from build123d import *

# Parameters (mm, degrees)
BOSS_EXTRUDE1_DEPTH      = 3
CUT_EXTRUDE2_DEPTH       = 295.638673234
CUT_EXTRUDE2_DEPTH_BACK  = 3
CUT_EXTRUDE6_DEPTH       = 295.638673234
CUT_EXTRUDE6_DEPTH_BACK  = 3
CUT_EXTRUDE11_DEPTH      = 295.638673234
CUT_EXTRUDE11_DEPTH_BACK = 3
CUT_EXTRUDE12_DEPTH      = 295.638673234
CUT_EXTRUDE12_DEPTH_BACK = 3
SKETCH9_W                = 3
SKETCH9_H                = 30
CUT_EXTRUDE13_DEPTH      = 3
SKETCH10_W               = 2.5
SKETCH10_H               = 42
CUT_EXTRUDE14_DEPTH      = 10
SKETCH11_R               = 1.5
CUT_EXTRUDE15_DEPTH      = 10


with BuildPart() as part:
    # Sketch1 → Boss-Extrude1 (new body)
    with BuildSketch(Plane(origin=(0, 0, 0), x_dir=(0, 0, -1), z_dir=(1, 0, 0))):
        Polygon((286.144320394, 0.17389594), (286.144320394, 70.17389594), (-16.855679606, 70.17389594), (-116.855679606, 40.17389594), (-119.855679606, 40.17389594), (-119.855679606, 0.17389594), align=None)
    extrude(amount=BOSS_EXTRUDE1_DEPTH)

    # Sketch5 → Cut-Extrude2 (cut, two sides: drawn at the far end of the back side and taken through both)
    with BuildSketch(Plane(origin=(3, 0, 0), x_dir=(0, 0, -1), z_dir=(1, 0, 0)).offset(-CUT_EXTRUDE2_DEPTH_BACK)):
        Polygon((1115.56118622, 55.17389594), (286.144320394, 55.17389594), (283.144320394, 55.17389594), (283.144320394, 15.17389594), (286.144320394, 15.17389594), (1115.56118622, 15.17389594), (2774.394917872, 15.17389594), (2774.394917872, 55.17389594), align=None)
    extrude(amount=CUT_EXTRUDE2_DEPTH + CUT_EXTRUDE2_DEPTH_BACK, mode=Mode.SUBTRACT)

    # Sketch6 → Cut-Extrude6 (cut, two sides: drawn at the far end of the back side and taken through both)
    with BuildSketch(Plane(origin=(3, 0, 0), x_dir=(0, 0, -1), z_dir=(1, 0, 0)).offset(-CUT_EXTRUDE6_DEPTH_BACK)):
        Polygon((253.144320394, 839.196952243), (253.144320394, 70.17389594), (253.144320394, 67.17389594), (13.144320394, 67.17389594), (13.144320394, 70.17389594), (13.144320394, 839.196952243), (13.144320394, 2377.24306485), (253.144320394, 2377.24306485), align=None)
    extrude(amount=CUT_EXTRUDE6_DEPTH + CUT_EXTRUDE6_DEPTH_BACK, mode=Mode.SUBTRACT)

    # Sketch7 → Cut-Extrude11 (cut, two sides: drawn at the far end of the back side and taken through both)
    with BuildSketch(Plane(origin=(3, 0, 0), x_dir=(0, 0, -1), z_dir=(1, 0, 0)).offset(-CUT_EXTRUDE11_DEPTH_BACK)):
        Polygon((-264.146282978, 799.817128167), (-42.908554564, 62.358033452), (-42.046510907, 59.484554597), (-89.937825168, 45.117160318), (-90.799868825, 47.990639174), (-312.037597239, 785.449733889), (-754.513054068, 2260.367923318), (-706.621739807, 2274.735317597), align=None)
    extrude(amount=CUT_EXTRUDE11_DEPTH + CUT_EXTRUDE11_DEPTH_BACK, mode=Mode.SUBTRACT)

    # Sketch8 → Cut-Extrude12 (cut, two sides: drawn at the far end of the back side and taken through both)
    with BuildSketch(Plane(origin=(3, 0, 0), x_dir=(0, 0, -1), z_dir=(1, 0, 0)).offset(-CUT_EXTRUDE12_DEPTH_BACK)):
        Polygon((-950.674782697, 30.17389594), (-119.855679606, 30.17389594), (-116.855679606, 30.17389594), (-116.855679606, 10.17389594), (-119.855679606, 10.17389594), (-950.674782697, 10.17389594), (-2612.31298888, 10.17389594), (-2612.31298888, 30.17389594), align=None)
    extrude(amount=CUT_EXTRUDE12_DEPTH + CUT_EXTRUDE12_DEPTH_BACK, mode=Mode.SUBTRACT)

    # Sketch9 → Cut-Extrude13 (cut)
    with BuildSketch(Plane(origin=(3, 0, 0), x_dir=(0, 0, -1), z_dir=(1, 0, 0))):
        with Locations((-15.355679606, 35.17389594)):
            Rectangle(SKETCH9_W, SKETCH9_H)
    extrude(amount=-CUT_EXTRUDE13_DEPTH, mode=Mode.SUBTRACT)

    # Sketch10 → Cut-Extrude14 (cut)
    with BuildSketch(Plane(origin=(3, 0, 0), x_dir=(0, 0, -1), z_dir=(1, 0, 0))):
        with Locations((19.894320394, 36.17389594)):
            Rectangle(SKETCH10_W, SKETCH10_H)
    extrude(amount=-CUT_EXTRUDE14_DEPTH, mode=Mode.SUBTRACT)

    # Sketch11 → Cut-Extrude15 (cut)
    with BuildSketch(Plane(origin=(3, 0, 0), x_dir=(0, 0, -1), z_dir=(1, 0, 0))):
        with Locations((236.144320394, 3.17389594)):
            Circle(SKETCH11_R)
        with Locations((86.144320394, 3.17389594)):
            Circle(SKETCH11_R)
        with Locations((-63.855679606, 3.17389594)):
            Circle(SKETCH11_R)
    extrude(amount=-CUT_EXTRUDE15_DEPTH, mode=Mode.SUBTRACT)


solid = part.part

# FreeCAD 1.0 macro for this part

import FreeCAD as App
import Part
import Sketcher
from FreeCAD import Vector
Q = App.Units.Quantity


def add_polygon(sketch, points):
    """Adds a closed chain of lines whose ends are joined by coincident constraints."""
    first, n = sketch.GeometryCount, len(points)
    for a, b in zip(points, points[1:] + points[:1]):
        sketch.addGeometry(Part.LineSegment(App.Vector(*a, 0), App.Vector(*b, 0)), False)
    for i in range(n):
        sketch.addConstraint(Sketcher.Constraint("Coincident", first + i, 2, first + (i + 1) % n, 1))

doc = App.newDocument("Part")
body = doc.addObject("PartDesign::Body", "Body")

# Sketch on YZ plane
sketch1 = body.newObject("Sketcher::SketchObject", "Sketch")
sketch1.AttachmentSupport = (doc.getObject("YZ_Plane"), [""])
sketch1.MapMode = "FlatFace"
add_polygon(sketch1, [(0.2, -286.1), (70.2, -286.1), (70.2, 16.9), (40.2, 116.9), (40.2, 119.9), (0.2, 119.9)])  # lines 0-5
sketch1.addConstraint([
    Sketcher.Constraint("Horizontal", 0),
    Sketcher.Constraint("Vertical", 1),
    Sketcher.Constraint("Vertical", 3),
    Sketcher.Constraint("Horizontal", 4),
    Sketcher.Constraint("Vertical", 5),
    Sketcher.Constraint("DistanceX", 0, 1, 0, 2, Q("70 mm")),
    Sketcher.Constraint("DistanceX", 4, 2, 4, 1, Q("40 mm")),
    Sketcher.Constraint("DistanceY", 1, 1, 1, 2, Q("303 mm")),
    Sketcher.Constraint("DistanceY", 3, 1, 3, 2, Q("3 mm")),
    Sketcher.Constraint("DistanceY", 5, 2, 5, 1, Q("406 mm")),
    Sketcher.Constraint("DistanceY", 0, 2, -1, 1, Q("286.14432 mm")),
    Sketcher.Constraint("DistanceX", -1, 1, 0, 2, Q("70.173896 mm")),
])
pad1 = body.newObject("PartDesign::Pad", "Pad")
pad1.Profile = sketch1
pad1.Length = 3

# Sketch on YZ plane
sketch2 = body.newObject("Sketcher::SketchObject", "Sketch001")
sketch2.AttachmentSupport = (doc.getObject("YZ_Plane"), [""])
sketch2.MapMode = "FlatFace"
sketch2.AttachmentOffset = App.Placement(Vector(0, 0, 3), App.Rotation())
add_polygon(sketch2, [(55, -283), (15, -283), (15, -2774), (55, -2774)])  # lines 0-3
sketch2.addConstraint([
    Sketcher.Constraint("Horizontal", 0),
    Sketcher.Constraint("Vertical", 1),
    Sketcher.Constraint("Horizontal", 2),
    Sketcher.Constraint("Vertical", 3),
    Sketcher.Constraint("DistanceX", 0, 2, 0, 1, Q("40 mm")),
    Sketcher.Constraint("DistanceY", 1, 2, 1, 1, Q("2491.250597 mm")),
    Sketcher.Constraint("DistanceY", 0, 2, -1, 1, Q("283.14432 mm")),
    Sketcher.Constraint("DistanceX", -1, 1, 0, 2, Q("15.173896 mm")),
])
pocket1 = body.newObject("PartDesign::Pocket", "Pocket")
pocket1.Profile = sketch2
pocket1.Type = "ThroughAll"
pocket1.Midplane = True

# Sketch on YZ plane
sketch3 = body.newObject("Sketcher::SketchObject", "Sketch002")
sketch3.AttachmentSupport = (doc.getObject("YZ_Plane"), [""])
sketch3.MapMode = "FlatFace"
sketch3.AttachmentOffset = App.Placement(Vector(0, 0, 3), App.Rotation())
add_polygon(sketch3, [(67, -253), (2377, -253), (2377, -13), (67, -13)])  # lines 0-3
sketch3.addConstraint([
    Sketcher.Constraint("Horizontal", 0),
    Sketcher.Constraint("Vertical", 1),
    Sketcher.Constraint("Horizontal", 2),
    Sketcher.Constraint("Vertical", 3),
    Sketcher.Constraint("DistanceY", 1, 1, 1, 2, Q("240 mm")),
    Sketcher.Constraint("DistanceX", 0, 1, 0, 2, Q("2310.069169 mm")),
    Sketcher.Constraint("DistanceY", 0, 2, -1, 1, Q("253.14432 mm")),
    Sketcher.Constraint("DistanceX", -1, 1, 0, 2, Q("2377.243065 mm")),
])
pocket2 = body.newObject("PartDesign::Pocket", "Pocket001")
pocket2.Profile = sketch3
pocket2.Type = "ThroughAll"
pocket2.Midplane = True

# Sketch on YZ plane
sketch4 = body.newObject("Sketcher::SketchObject", "Sketch003")
sketch4.AttachmentSupport = (doc.getObject("YZ_Plane"), [""])
sketch4.MapMode = "FlatFace"
sketch4.AttachmentOffset = App.Placement(Vector(0, 0, 3), App.Rotation())
add_polygon(sketch4, [(62.4, 42.9), (2274.7, 706.6), (2260.4, 754.5), (48, 90.8), (45.1, 89.9), (59.5, 42)])  # lines 0-5
sketch4.addConstraint([
    Sketcher.Constraint("Perpendicular", 0, 1),
    Sketcher.Constraint("Perpendicular", 1, 2),
    Sketcher.Constraint("Parallel", 2, 3),
    Sketcher.Constraint("Perpendicular", 3, 4),
    Sketcher.Constraint("Perpendicular", 4, 5),
    Sketcher.Constraint("Equal", 0, 2),
    Sketcher.Constraint("Distance", 1, Q("50 mm")),
    Sketcher.Constraint("Distance", 3, Q("3 mm")),
    Sketcher.Constraint("DistanceY", 5, 2, 1, 2, Q("711.6045 mm")),
    Sketcher.Constraint("DistanceY", -1, 1, 0, 2, Q("706.62174 mm")),
    Sketcher.Constraint("DistanceX", -1, 1, 2, 2, Q("47.990639 mm")),
    Sketcher.Constraint("DistanceX", 2, 2, 0, 2, Q("2226.744678 mm")),
])
pocket3 = body.newObject("PartDesign::Pocket", "Pocket002")
pocket3.Profile = sketch4
pocket3.Type = "ThroughAll"
pocket3.Midplane = True

# Sketch on YZ plane
sketch5 = body.newObject("Sketcher::SketchObject", "Sketch004")
sketch5.AttachmentSupport = (doc.getObject("YZ_Plane"), [""])
sketch5.MapMode = "FlatFace"
sketch5.AttachmentOffset = App.Placement(Vector(0, 0, 3), App.Rotation())
add_polygon(sketch5, [(30, 117), (30, 2612), (10, 2612), (10, 117)])  # lines 0-3
sketch5.addConstraint([
    Sketcher.Constraint("Vertical", 0),
    Sketcher.Constraint("Horizontal", 1),
    Sketcher.Constraint("Vertical", 2),
    Sketcher.Constraint("Horizontal", 3),
    Sketcher.Constraint("DistanceX", 1, 2, 1, 1, Q("20 mm")),
    Sketcher.Constraint("DistanceY", 0, 1, 0, 2, Q("2495.457309 mm")),
    Sketcher.Constraint("DistanceY", -1, 1, 0, 2, Q("2612.312989 mm")),
    Sketcher.Constraint("DistanceX", -1, 1, 0, 2, Q("30.173896 mm")),
])
pocket4 = body.newObject("PartDesign::Pocket", "Pocket003")
pocket4.Profile = sketch5
pocket4.Type = "ThroughAll"
pocket4.Midplane = True

# Sketch on YZ plane
sketch6 = body.newObject("Sketcher::SketchObject", "Sketch005")
sketch6.AttachmentSupport = (doc.getObject("YZ_Plane"), [""])
sketch6.MapMode = "FlatFace"
sketch6.AttachmentOffset = App.Placement(Vector(0, 0, 3), App.Rotation())
add_polygon(sketch6, [(50.2, 16.9), (20.2, 16.9), (20.2, 13.9), (50.2, 13.9)])  # lines 0-3
sketch6.addConstraint([
    Sketcher.Constraint("Horizontal", 0),
    Sketcher.Constraint("Vertical", 1),
    Sketcher.Constraint("Horizontal", 2),
    Sketcher.Constraint("Vertical", 3),
    Sketcher.Constraint("DistanceX", 0, 2, 0, 1, Q("30 mm")),
    Sketcher.Constraint("DistanceY", 1, 2, 1, 1, Q("3 mm")),
    Sketcher.Constraint("DistanceY", -1, 1, 0, 2, Q("16.85568 mm")),
    Sketcher.Constraint("DistanceX", -1, 1, 0, 2, Q("20.173896 mm")),
])
pocket5 = body.newObject("PartDesign::Pocket", "Pocket004")
pocket5.Profile = sketch6
pocket5.Length = 3

# Sketch on YZ plane
sketch7 = body.newObject("Sketcher::SketchObject", "Sketch006")
sketch7.AttachmentSupport = (doc.getObject("YZ_Plane"), [""])
sketch7.MapMode = "FlatFace"
sketch7.AttachmentOffset = App.Placement(Vector(0, 0, 3), App.Rotation())
add_polygon(sketch7, [(57.2, -18.6), (15.2, -18.6), (15.2, -21.1), (57.2, -21.1)])  # lines 0-3
sketch7.addConstraint([
    Sketcher.Constraint("Horizontal", 0),
    Sketcher.Constraint("Vertical", 1),
    Sketcher.Constraint("Horizontal", 2),
    Sketcher.Constraint("Vertical", 3),
    Sketcher.Constraint("DistanceX", 0, 2, 0, 1, Q("42 mm")),
    Sketcher.Constraint("DistanceY", 1, 2, 1, 1, Q("2.5 mm")),
    Sketcher.Constraint("DistanceY", 0, 2, -1, 1, Q("18.64432 mm")),
    Sketcher.Constraint("DistanceX", -1, 1, 0, 2, Q("15.173896 mm")),
])
pocket6 = body.newObject("PartDesign::Pocket", "Pocket005")
pocket6.Profile = sketch7
pocket6.Length = 10

# Sketch on YZ plane
sketch8 = body.newObject("Sketcher::SketchObject", "Sketch007")
sketch8.AttachmentSupport = (doc.getObject("YZ_Plane"), [""])
sketch8.MapMode = "FlatFace"
sketch8.AttachmentOffset = App.Placement(Vector(0, 0, 3), App.Rotation())
sketch8.addGeometry([
    Part.Circle(Vector(3.2, -236.1, 0), Vector(0, 0, 1), 1.5),
    Part.Circle(Vector(3.2, -86.1, 0), Vector(0, 0, 1), 1.5),
    Part.Circle(Vector(3.2, 63.9, 0), Vector(0, 0, 1), 1.5),
], False)
sketch8.addConstraint([
    Sketcher.Constraint("Equal", 0, 1),
    Sketcher.Constraint("Equal", 1, 2),
    Sketcher.Constraint("Vertical", 0, 3, 1, 3),
    Sketcher.Constraint("Vertical", 1, 3, 2, 3),
    Sketcher.Constraint("Diameter", 0, Q("3 mm")),
    Sketcher.Constraint("DistanceY", 0, 3, 1, 3, Q("150 mm")),
    Sketcher.Constraint("DistanceY", 1, 3, 2, 3, Q("150 mm")),
    Sketcher.Constraint("DistanceY", 0, 3, -1, 1, Q("236.14432 mm")),
    Sketcher.Constraint("DistanceX", -1, 1, 0, 3, Q("3.173896 mm")),
])
pocket7 = body.newObject("PartDesign::Pocket", "Pocket006")
pocket7.Profile = sketch8
pocket7.Length = 10

doc.recompute()
